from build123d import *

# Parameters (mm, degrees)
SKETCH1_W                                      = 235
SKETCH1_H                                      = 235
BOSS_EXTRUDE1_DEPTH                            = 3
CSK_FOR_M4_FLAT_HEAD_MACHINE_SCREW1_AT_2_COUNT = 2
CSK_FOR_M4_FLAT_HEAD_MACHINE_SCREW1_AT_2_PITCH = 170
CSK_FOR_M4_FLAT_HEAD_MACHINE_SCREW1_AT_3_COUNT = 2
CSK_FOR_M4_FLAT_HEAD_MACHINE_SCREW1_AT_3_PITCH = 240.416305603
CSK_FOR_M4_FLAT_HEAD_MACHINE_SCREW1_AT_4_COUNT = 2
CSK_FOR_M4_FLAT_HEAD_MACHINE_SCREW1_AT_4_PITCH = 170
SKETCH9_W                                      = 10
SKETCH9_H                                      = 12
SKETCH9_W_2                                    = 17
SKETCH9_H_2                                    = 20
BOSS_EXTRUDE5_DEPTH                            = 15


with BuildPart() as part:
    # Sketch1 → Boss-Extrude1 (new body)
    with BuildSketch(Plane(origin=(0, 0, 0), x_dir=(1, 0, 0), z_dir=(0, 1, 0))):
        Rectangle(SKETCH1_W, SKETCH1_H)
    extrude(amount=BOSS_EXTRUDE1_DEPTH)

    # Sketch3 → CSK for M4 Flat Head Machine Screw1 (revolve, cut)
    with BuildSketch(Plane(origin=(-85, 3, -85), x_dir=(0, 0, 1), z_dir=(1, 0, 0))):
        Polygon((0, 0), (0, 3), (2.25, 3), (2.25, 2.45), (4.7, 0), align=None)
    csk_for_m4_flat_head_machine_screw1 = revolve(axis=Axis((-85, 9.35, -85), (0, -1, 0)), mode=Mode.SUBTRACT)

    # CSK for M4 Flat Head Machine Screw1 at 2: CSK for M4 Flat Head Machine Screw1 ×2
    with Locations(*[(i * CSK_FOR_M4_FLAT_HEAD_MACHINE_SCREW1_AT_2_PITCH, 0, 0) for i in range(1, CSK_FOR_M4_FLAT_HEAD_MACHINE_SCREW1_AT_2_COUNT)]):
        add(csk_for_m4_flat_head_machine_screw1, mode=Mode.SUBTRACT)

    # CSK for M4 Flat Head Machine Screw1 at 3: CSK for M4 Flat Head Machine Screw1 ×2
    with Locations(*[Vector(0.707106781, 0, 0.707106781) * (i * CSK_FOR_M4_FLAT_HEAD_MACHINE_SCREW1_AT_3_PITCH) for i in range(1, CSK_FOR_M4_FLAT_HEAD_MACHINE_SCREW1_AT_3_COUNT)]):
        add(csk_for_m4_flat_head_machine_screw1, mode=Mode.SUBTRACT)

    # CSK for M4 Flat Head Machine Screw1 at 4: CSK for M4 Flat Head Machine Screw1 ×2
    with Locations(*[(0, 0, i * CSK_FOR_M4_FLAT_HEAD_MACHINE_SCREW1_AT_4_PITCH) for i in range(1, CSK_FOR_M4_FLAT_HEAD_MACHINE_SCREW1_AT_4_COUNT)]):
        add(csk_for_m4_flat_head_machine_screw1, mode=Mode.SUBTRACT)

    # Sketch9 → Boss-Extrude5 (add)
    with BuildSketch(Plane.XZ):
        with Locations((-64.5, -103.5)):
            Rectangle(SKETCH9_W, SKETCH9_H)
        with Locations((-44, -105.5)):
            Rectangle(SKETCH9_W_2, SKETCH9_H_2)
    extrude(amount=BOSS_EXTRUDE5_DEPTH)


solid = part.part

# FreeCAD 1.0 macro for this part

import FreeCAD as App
import Part
import Sketcher
from FreeCAD import Vector
Q = App.Units.Quantity

doc = App.newDocument("Part")
body = doc.addObject("PartDesign::Body", "Body")

# Sketch on XZ plane
sketch1 = body.newObject("Sketcher::SketchObject", "Sketch")
sketch1.AttachmentSupport = (doc.getObject("XZ_Plane"), [""])
sketch1.MapMode = "FlatFace"
sketch1.addGeometry([
    Part.LineSegment(Vector(-118, -118, 0), Vector(-118, 118, 0)),
    Part.LineSegment(Vector(-118, 118, 0), Vector(118, 118, 0)),
    Part.LineSegment(Vector(118, 118, 0), Vector(118, -118, 0)),
    Part.LineSegment(Vector(118, -118, 0), Vector(-118, -118, 0)),
], False)
sketch1.addConstraint([
    Sketcher.Constraint("Coincident", 0, 2, 1, 1),
    Sketcher.Constraint("Coincident", 1, 2, 2, 1),
    Sketcher.Constraint("Coincident", 2, 2, 3, 1),
    Sketcher.Constraint("Coincident", 3, 2, 0, 1),
    Sketcher.Constraint("Vertical", 0),
    Sketcher.Constraint("Horizontal", 1),
    Sketcher.Constraint("Vertical", 2),
    Sketcher.Constraint("Horizontal", 3),
    Sketcher.Constraint("Symmetric", 0, 2, 2, 2, -1, 1),
    Sketcher.Constraint("Equal", 3, 0),
    Sketcher.Constraint("DistanceX", 1, 1, 1, 2, 235.0),
])
pad1 = body.newObject("PartDesign::Pad", "Pad")
pad1.Profile = sketch1
pad1.Length = 3
pad1.Reversed = True

# Sketch on YZ plane
sketch2 = body.newObject("Sketcher::SketchObject", "Sketch001")
sketch2.AttachmentSupport = (doc.getObject("YZ_Plane"), [""])
sketch2.MapMode = "FlatFace"
sketch2.AttachmentOffset = App.Placement(Vector(0, 0, -85), App.Rotation())
sketch2.addGeometry([
    Part.LineSegment(Vector(0, -85, 0), Vector(3, -85, 0)),  # 0
    Part.LineSegment(Vector(3, -85, 0), Vector(3, -80.3, 0)),  # 1
    Part.LineSegment(Vector(3, -80.3, 0), Vector(0.6, -82.8, 0)),  # 2
    Part.LineSegment(Vector(0.6, -82.8, 0), Vector(0, -82.8, 0)),  # 3
    Part.LineSegment(Vector(0, -82.8, 0), Vector(0, -85, 0)),  # 4
], False)
sketch2.addGeometry(Part.LineSegment(Vector(3, -85, 0), Vector(0, -85, 0)), True)  # axis
sketch2.addConstraint([
    Sketcher.Constraint("Coincident", 0, 2, 1, 1),
    Sketcher.Constraint("Coincident", 1, 2, 2, 1),
    Sketcher.Constraint("Coincident", 2, 2, 3, 1),
    Sketcher.Constraint("Coincident", 3, 2, 4, 1),
    Sketcher.Constraint("Coincident", 4, 2, 0, 1),
    Sketcher.Constraint("Horizontal", 0),
    Sketcher.Constraint("Vertical", 1),
    Sketcher.Constraint("Horizontal", 3),
    Sketcher.Constraint("Vertical", 4),
    Sketcher.Constraint("Horizontal", 5),
    Sketcher.Constraint("Coincident", 5, 1, 0, 2),
    Sketcher.Constraint("PointOnObject", 3, 2, -2),
    Sketcher.Constraint("PointOnObject", 5, 2, -2),
    Sketcher.Constraint("DistanceX", 0, 1, 0, 2, 3.0),
    Sketcher.Constraint("Angle", 2, Q("-135 deg")),
    Sketcher.Constraint("DistanceY", 1, 1, 1, 2, 4.7),
    Sketcher.Constraint("DistanceY", 0, 2, -1, 1, 85.0),
    Sketcher.Constraint("DistanceX", 3, 2, 3, 1, 0.55),
])
groove = body.newObject("PartDesign::Groove", "Groove")
groove.Profile = sketch2
groove.ReferenceAxis = (sketch2, ["Axis0"])
groove.Angle = 360
doc.recompute()

linearpattern = body.newObject("PartDesign::LinearPattern", "LinearPattern")
linearpattern.Originals = [groove]
linearpattern.Direction = (doc.getObject("X_Axis"), [""])
linearpattern.Mode = "offset"
linearpattern.Offset = 170
linearpattern.Occurrences = 2
body.Tip = linearpattern
doc.recompute()

datumline = body.newObject("PartDesign::Line", "DatumLine")
datumline.Placement = App.Placement(Vector(0, 0, 0), App.Rotation(Vector(0, 0, 1), Vector(0.707106781, 0, 0.707106781)))
linearpattern2 = body.newObject("PartDesign::LinearPattern", "LinearPattern001")
linearpattern2.Originals = [groove]
linearpattern2.Direction = (datumline, [""])
linearpattern2.Mode = "offset"
linearpattern2.Offset = 240.416306
linearpattern2.Occurrences = 2
body.Tip = linearpattern2
doc.recompute()

linearpattern3 = body.newObject("PartDesign::LinearPattern", "LinearPattern002")
linearpattern3.Originals = [groove]
linearpattern3.Direction = (doc.getObject("Z_Axis"), [""])
linearpattern3.Mode = "offset"
linearpattern3.Offset = 170
linearpattern3.Occurrences = 2
body.Tip = linearpattern3

# Sketch on XZ plane
sketch3 = body.newObject("Sketcher::SketchObject", "Sketch002")
sketch3.AttachmentSupport = (doc.getObject("XZ_Plane"), [""])
sketch3.MapMode = "FlatFace"
sketch3.addGeometry([
    Part.LineSegment(Vector(-70, -98, 0), Vector(-70, -110, 0)),  # 0
    Part.LineSegment(Vector(-70, -110, 0), Vector(-60, -110, 0)),  # 1
    Part.LineSegment(Vector(-60, -110, 0), Vector(-60, -98, 0)),  # 2
    Part.LineSegment(Vector(-60, -98, 0), Vector(-70, -98, 0)),  # 3
    Part.LineSegment(Vector(-52, -96, 0), Vector(-52, -116, 0)),  # 4
    Part.LineSegment(Vector(-52, -116, 0), Vector(-36, -116, 0)),  # 5
    Part.LineSegment(Vector(-36, -116, 0), Vector(-36, -96, 0)),  # 6
    Part.LineSegment(Vector(-36, -96, 0), Vector(-52, -96, 0)),  # 7
], False)
sketch3.addConstraint([
    Sketcher.Constraint("Coincident", 0, 2, 1, 1),
    Sketcher.Constraint("Coincident", 1, 2, 2, 1),
    Sketcher.Constraint("Coincident", 2, 2, 3, 1),
    Sketcher.Constraint("Coincident", 3, 2, 0, 1),
    Sketcher.Constraint("Coincident", 4, 2, 5, 1),
    Sketcher.Constraint("Coincident", 5, 2, 6, 1),
    Sketcher.Constraint("Coincident", 6, 2, 7, 1),
    Sketcher.Constraint("Coincident", 7, 2, 4, 1),
    Sketcher.Constraint("Vertical", 0),
    Sketcher.Constraint("Horizontal", 1),
    Sketcher.Constraint("Vertical", 2),
    Sketcher.Constraint("Horizontal", 3),
    Sketcher.Constraint("Vertical", 4),
    Sketcher.Constraint("Horizontal", 5),
    Sketcher.Constraint("Vertical", 6),
    Sketcher.Constraint("Horizontal", 7),
    Sketcher.Constraint("DistanceX", 1, 1, 1, 2, 10.0),
    Sketcher.Constraint("DistanceX", 5, 1, 5, 2, 17.0),
    Sketcher.Constraint("DistanceY", 0, 2, 0, 1, 12.0),
    Sketcher.Constraint("DistanceY", 4, 2, 4, 1, 20.0),
    Sketcher.Constraint("DistanceX", 1, 2, 4, 2, 7.0),
    Sketcher.Constraint("DistanceY", 4, 2, 1, 2, 6.0),
    Sketcher.Constraint("DistanceX", 0, 2, -1, 1, 69.5),
    Sketcher.Constraint("DistanceY", 0, 2, -1, 1, 109.5),
])
pad2 = body.newObject("PartDesign::Pad", "Pad001")
pad2.Profile = sketch3
pad2.Length = 15

doc.recompute()
